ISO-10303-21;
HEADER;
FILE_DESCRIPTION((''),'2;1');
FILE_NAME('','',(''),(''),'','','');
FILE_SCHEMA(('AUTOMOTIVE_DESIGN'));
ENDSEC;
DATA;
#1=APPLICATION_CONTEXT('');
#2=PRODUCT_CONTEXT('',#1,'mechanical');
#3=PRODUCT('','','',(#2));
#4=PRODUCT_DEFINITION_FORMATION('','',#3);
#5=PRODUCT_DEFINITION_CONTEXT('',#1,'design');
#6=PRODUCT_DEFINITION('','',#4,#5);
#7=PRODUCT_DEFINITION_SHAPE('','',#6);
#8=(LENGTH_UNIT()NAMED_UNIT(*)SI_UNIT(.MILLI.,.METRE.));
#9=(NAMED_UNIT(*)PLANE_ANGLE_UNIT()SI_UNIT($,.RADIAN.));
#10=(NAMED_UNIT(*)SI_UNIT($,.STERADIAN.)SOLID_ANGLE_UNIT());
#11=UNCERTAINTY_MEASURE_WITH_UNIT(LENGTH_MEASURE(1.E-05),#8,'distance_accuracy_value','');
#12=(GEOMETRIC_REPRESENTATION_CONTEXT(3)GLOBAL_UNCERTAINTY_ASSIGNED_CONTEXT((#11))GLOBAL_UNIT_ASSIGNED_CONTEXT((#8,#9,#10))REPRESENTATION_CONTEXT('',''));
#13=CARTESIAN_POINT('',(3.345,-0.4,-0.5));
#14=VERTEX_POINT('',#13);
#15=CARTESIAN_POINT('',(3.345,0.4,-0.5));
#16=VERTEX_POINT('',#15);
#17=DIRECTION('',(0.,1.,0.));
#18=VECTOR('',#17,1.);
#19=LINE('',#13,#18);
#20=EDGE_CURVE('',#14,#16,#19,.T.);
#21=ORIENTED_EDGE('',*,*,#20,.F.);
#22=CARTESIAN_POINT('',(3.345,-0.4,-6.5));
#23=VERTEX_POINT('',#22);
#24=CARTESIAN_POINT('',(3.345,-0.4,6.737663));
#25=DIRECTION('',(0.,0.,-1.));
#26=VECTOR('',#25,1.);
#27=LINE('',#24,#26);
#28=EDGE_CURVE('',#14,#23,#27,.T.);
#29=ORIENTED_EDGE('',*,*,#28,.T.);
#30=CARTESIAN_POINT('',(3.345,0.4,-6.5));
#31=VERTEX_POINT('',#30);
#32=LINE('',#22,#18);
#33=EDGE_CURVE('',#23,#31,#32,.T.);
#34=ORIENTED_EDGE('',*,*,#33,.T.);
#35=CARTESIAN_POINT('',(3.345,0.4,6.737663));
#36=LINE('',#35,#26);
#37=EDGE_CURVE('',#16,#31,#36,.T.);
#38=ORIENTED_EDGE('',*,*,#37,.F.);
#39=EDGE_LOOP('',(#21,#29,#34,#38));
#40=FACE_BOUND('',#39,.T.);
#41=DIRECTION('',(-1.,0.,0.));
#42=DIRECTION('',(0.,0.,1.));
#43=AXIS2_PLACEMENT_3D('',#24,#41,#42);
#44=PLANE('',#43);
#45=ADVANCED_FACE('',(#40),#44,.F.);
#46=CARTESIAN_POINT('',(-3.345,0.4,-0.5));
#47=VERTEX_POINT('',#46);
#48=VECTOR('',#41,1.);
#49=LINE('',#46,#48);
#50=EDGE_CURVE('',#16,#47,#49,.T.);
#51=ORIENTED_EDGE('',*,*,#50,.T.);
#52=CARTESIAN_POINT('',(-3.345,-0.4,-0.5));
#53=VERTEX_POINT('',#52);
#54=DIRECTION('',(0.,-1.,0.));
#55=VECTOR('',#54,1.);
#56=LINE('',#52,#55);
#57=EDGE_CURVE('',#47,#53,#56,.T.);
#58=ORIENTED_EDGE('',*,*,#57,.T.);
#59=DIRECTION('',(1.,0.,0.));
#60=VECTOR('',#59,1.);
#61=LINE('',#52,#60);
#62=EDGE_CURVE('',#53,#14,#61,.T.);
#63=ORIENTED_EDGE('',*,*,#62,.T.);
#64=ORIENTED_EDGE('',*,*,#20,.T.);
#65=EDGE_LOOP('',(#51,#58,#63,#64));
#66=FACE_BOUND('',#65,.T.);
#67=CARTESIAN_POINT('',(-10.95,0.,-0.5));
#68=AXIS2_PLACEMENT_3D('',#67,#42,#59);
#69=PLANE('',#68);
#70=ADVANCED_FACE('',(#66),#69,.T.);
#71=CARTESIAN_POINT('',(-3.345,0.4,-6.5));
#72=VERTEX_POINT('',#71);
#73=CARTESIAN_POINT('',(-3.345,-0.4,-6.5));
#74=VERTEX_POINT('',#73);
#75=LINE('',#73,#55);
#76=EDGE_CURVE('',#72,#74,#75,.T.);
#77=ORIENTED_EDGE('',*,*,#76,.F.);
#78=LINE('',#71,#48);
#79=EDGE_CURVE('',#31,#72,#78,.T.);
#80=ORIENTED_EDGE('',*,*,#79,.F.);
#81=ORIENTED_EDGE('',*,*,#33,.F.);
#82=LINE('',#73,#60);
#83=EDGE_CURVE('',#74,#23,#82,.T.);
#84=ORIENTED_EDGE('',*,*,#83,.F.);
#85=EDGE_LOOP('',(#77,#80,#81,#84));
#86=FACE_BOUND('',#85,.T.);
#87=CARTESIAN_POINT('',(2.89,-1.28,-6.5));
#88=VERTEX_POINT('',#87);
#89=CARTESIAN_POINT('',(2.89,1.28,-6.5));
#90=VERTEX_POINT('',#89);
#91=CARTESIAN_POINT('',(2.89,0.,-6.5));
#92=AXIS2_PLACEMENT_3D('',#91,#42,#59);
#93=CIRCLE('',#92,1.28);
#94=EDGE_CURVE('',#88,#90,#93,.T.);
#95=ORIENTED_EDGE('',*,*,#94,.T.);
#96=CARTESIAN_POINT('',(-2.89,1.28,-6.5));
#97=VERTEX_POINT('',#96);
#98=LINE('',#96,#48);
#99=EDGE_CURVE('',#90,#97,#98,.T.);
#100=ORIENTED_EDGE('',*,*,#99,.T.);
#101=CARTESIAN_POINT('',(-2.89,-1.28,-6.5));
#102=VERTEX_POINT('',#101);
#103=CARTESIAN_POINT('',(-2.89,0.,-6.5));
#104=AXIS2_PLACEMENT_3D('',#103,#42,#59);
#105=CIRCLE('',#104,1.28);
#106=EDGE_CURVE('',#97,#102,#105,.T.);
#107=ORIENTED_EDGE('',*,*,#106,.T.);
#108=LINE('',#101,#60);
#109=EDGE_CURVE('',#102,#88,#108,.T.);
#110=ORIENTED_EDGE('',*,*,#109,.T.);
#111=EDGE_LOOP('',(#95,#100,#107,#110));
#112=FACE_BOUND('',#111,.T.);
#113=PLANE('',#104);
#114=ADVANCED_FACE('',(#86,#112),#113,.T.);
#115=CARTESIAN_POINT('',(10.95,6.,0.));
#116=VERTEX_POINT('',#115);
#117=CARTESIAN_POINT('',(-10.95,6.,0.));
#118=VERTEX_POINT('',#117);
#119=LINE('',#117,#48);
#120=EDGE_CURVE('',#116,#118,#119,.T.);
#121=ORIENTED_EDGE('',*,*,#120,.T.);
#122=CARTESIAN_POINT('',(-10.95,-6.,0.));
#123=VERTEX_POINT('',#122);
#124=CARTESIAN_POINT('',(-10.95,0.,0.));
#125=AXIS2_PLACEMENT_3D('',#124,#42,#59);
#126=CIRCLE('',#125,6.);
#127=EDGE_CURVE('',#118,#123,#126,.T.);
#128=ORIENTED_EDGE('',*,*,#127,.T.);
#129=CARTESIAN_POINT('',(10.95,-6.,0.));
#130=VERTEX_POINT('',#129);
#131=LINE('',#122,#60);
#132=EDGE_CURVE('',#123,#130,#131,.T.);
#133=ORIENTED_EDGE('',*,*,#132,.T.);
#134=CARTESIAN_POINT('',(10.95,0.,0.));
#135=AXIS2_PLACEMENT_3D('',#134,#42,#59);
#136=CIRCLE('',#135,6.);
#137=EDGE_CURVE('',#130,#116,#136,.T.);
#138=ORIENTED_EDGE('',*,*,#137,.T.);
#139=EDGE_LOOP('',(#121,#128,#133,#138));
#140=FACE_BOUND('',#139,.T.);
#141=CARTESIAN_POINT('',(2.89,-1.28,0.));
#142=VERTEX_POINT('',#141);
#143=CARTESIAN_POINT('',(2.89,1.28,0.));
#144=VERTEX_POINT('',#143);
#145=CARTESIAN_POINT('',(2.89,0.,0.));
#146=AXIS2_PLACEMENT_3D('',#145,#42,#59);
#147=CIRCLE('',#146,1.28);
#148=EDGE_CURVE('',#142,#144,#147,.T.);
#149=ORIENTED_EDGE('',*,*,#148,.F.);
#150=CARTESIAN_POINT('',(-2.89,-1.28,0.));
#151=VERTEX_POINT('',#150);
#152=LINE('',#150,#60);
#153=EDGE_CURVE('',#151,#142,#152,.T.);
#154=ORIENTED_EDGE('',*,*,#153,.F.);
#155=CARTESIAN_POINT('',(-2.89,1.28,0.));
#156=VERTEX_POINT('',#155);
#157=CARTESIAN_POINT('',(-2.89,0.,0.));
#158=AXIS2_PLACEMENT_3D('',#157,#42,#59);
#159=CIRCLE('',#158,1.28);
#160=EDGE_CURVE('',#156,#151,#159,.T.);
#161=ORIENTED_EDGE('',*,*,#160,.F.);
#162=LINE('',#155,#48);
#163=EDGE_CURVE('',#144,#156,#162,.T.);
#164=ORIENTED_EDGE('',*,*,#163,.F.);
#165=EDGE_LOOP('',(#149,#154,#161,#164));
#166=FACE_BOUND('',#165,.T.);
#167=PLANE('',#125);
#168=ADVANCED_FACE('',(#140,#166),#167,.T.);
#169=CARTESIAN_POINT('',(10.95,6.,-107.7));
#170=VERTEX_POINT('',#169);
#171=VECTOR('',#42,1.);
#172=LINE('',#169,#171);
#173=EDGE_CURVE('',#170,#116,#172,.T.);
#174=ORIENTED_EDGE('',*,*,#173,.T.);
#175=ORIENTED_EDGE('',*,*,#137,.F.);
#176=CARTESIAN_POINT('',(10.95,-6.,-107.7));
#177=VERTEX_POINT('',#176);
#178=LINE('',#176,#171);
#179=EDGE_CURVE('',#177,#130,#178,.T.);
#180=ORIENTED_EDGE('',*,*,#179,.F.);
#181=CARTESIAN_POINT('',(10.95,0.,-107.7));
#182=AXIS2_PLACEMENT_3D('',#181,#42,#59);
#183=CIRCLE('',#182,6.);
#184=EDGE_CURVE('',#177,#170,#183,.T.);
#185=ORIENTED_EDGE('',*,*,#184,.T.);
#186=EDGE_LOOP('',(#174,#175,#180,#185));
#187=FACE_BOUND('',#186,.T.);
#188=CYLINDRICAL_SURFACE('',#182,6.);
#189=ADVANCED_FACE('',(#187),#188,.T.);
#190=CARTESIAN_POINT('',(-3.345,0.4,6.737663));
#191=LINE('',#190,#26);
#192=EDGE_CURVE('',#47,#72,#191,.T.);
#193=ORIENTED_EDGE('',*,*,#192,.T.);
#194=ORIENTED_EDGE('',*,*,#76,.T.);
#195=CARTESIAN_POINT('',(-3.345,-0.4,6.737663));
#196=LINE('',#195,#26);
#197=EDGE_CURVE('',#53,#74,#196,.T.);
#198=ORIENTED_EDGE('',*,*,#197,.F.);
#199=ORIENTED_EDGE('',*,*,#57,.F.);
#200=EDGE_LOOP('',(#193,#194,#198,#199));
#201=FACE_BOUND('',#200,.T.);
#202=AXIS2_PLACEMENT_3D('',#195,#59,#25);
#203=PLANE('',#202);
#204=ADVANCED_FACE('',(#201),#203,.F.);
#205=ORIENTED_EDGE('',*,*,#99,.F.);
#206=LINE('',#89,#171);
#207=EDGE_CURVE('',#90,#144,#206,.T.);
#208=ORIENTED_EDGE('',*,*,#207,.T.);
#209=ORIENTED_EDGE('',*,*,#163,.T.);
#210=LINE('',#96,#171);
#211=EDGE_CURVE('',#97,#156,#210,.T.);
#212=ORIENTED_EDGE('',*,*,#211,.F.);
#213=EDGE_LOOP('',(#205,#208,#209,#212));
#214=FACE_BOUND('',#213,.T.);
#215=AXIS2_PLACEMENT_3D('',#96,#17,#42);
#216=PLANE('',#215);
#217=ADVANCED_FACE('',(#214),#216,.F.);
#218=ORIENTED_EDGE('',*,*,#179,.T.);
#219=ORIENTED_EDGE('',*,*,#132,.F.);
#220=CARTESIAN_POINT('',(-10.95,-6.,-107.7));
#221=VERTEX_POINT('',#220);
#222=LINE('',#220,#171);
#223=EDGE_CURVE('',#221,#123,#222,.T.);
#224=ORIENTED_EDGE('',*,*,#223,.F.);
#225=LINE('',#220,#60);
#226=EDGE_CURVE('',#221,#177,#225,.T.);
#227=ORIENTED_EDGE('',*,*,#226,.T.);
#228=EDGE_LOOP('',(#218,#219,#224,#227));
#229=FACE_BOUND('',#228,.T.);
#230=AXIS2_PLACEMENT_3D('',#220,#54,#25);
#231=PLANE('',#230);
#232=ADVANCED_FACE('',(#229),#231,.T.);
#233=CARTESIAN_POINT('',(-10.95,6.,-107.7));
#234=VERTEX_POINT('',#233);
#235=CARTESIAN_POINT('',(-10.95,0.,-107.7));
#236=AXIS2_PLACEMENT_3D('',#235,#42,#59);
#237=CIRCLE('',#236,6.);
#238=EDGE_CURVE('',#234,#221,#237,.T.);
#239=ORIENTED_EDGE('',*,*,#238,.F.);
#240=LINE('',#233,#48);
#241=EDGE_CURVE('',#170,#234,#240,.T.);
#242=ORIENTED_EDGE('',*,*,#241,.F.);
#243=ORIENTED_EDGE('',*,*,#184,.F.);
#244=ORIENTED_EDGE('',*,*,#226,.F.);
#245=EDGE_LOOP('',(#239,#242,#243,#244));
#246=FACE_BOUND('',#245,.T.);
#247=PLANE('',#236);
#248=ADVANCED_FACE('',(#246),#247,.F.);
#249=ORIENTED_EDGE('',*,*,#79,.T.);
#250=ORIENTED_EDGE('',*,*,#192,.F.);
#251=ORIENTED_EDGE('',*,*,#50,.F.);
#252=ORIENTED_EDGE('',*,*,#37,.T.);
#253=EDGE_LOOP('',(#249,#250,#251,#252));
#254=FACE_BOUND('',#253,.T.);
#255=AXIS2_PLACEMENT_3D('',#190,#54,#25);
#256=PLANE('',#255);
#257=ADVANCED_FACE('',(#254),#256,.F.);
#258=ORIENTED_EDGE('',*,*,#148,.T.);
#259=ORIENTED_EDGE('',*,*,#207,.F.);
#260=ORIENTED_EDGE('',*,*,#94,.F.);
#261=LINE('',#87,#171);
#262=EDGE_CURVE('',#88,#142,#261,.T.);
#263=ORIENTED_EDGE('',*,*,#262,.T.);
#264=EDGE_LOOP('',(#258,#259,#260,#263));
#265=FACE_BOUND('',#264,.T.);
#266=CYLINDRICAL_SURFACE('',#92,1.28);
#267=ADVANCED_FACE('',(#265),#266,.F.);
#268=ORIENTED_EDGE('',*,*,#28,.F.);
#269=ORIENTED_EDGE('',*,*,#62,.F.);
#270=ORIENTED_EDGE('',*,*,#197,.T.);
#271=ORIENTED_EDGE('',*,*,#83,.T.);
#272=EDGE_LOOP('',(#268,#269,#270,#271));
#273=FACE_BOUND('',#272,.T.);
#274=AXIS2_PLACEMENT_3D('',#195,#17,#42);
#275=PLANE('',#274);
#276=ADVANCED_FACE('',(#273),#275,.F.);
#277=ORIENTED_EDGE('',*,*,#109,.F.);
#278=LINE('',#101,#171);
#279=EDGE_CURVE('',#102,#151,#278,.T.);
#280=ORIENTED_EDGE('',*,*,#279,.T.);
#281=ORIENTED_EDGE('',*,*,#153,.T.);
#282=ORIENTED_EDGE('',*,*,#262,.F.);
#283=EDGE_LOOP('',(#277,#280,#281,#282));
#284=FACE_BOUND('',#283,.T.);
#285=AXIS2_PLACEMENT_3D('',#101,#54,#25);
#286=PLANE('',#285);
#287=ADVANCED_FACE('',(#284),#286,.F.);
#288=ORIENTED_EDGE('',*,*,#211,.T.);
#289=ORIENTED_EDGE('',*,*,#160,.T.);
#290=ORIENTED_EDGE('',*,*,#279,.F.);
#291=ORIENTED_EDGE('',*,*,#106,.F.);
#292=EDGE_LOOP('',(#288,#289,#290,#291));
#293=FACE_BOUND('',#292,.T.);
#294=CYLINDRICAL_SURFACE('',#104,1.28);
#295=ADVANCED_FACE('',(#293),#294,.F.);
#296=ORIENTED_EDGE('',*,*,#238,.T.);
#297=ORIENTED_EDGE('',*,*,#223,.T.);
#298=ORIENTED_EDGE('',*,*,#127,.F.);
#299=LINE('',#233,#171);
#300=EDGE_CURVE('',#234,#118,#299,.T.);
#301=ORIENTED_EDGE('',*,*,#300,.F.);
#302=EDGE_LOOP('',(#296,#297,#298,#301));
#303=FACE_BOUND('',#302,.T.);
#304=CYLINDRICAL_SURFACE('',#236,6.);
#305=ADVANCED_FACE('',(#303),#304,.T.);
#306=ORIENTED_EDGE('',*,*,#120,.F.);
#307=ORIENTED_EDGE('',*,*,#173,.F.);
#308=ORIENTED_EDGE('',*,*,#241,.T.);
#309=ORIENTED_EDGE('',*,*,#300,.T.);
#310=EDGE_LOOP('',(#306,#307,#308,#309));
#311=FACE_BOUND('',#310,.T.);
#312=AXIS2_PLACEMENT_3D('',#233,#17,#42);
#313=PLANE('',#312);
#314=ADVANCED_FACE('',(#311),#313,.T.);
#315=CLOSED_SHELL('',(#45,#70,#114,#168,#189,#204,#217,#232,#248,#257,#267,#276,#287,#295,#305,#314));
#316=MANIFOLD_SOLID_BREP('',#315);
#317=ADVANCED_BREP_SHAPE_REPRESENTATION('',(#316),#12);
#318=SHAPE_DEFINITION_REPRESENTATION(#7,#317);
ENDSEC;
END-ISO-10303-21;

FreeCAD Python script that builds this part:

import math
import FreeCAD as App
import Part
import Sketcher
from FreeCAD import Vector
Q = App.Units.Quantity


def add_polygon(sketch, points):
    """Adds a closed chain of lines whose ends are joined by coincident constraints."""
    first, n = sketch.GeometryCount, len(points)
    for a, b in zip(points, points[1:] + points[:1]):
        sketch.addGeometry(Part.LineSegment(App.Vector(*a, 0), App.Vector(*b, 0)), False)
    for i in range(n):
        sketch.addConstraint(Sketcher.Constraint("Coincident", first + i, 2, first + (i + 1) % n, 1))

doc = App.newDocument("Part")
body = doc.addObject("PartDesign::Body", "Body")

sketch1 = body.newObject("Sketcher::SketchObject", "Sketch")
sketch1.AttachmentSupport = (doc.getObject("XY_Plane"), [""])
sketch1.MapMode = "FlatFace"
sketch1.addGeometry([
    Part.LineSegment(Vector(10.95, 6, 0), Vector(-10.95, 6, 0)),
    Part.ArcOfCircle(Part.Circle(Vector(-10.95, 0, 0), Vector(0, 0, 1), 6), math.radians(90), math.radians(270)),
    Part.LineSegment(Vector(-10.95, -6, 0), Vector(10.95, -6, 0)),
    Part.ArcOfCircle(Part.Circle(Vector(10.95, 0, 0), Vector(0, 0, 1), 6), math.radians(-90), math.radians(90)),
], False)
sketch1.addConstraint([
    Sketcher.Constraint("Tangent", 0, 2, 1, 1),
    Sketcher.Constraint("Tangent", 1, 2, 2, 1),
    Sketcher.Constraint("Tangent", 2, 2, 3, 1),
    Sketcher.Constraint("Tangent", 3, 2, 0, 1),
    Sketcher.Constraint("Horizontal", 0),
    Sketcher.Constraint("Horizontal", 2),
    Sketcher.Constraint("Symmetric", 1, 3, 3, 3, -1, 1),
    Sketcher.Constraint("Radius", 1, Q("6 mm")),
    Sketcher.Constraint("DistanceX", 0, 2, 0, 1, Q("21.9 mm")),
])
pad1 = body.newObject("PartDesign::Pad", "Pad")
pad1.Profile = sketch1
pad1.Length = 107.7
pad1.Reversed = True

sketch2 = body.newObject("Sketcher::SketchObject", "Sketch001")
sketch2.AttachmentSupport = (doc.getObject("XY_Plane"), [""])
sketch2.MapMode = "FlatFace"
sketch2.addGeometry([
    Part.LineSegment(Vector(2.89, 1.28, 0), Vector(-2.89, 1.28, 0)),
    Part.ArcOfCircle(Part.Circle(Vector(-2.89, 0, 0), Vector(0, 0, 1), 1.28), math.radians(90), math.radians(270)),
    Part.LineSegment(Vector(-2.89, -1.28, 0), Vector(2.89, -1.28, 0)),
    Part.ArcOfCircle(Part.Circle(Vector(2.89, 0, 0), Vector(0, 0, 1), 1.28), math.radians(-90), math.radians(90)),
], False)
sketch2.addConstraint([
    Sketcher.Constraint("Tangent", 0, 2, 1, 1),
    Sketcher.Constraint("Tangent", 1, 2, 2, 1),
    Sketcher.Constraint("Tangent", 2, 2, 3, 1),
    Sketcher.Constraint("Tangent", 3, 2, 0, 1),
    Sketcher.Constraint("Horizontal", 0),
    Sketcher.Constraint("Horizontal", 2),
    Sketcher.Constraint("Symmetric", 1, 3, 3, 3, -1, 1),
    Sketcher.Constraint("Radius", 1, Q("1.28 mm")),
    Sketcher.Constraint("DistanceX", 0, 2, 0, 1, Q("5.78 mm")),
])
pocket1 = body.newObject("PartDesign::Pocket", "Pocket")
pocket1.Profile = sketch2
pocket1.Length = 6.5

sketch3 = body.newObject("Sketcher::SketchObject", "Sketch002")
sketch3.AttachmentSupport = (doc.getObject("XY_Plane"), [""])
sketch3.MapMode = "FlatFace"
sketch3.AttachmentOffset = App.Placement(Vector(0, 0, -6.5), App.Rotation())
add_polygon(sketch3, [(-3.345, 0.4), (-3.345, -0.4), (3.345, -0.4), (3.345, 0.4)])
sketch3.addConstraint([
    Sketcher.Constraint("Vertical", 0),
    Sketcher.Constraint("Horizontal", 1),
    Sketcher.Constraint("Vertical", 2),
    Sketcher.Constraint("Horizontal", 3),
    Sketcher.Constraint("Symmetric", 0, 2, 2, 2, -1, 1),
    Sketcher.Constraint("DistanceY", 0, 2, 0, 1, Q("0.8 mm")),
    Sketcher.Constraint("DistanceX", 1, 1, 1, 2, Q("6.69 mm")),
])
pad2 = body.newObject("PartDesign::Pad", "Pad001")
pad2.Profile = sketch3
pad2.Length = 6

doc.recompute()
